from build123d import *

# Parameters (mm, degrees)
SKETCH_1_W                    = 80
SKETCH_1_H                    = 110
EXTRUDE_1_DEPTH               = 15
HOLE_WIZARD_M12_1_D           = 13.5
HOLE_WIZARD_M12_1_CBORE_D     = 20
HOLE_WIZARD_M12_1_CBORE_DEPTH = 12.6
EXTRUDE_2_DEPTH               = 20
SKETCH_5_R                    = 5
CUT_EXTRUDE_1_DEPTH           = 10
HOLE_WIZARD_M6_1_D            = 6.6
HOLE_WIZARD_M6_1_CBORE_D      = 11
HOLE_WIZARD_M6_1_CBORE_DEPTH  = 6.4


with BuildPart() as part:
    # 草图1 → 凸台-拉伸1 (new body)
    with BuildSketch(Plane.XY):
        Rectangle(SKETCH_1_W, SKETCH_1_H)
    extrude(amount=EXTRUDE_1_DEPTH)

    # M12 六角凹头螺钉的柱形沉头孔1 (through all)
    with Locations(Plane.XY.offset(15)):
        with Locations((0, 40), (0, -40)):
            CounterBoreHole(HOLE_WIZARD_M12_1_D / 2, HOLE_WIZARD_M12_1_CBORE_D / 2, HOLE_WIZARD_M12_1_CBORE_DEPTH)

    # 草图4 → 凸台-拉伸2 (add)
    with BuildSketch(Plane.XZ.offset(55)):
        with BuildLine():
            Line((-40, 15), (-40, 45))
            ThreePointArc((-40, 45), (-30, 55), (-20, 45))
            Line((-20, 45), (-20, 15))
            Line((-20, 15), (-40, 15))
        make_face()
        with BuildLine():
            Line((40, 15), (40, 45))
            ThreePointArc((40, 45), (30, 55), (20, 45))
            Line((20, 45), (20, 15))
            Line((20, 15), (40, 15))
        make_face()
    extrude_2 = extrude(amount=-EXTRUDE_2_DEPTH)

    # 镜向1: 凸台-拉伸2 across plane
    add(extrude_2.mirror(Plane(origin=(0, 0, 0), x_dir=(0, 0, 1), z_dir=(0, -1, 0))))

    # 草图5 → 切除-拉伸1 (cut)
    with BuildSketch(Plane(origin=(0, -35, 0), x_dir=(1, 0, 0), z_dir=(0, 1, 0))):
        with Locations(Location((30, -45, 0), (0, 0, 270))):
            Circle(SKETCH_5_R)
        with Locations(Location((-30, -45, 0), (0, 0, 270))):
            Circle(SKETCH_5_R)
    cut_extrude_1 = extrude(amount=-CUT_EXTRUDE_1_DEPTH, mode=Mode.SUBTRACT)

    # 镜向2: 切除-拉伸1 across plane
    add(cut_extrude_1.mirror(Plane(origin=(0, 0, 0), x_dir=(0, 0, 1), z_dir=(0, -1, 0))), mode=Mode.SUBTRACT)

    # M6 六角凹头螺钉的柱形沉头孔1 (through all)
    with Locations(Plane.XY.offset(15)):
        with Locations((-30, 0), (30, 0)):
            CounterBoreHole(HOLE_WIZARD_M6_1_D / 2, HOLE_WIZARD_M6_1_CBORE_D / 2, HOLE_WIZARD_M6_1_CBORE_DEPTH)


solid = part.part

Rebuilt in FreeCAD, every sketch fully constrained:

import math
import FreeCAD as App
import Part
import Sketcher
from FreeCAD import Vector
Q = App.Units.Quantity

doc = App.newDocument("Part")
body = doc.addObject("PartDesign::Body", "Body")

# Sketch on XY plane
sketch1 = body.newObject("Sketcher::SketchObject", "Sketch")
sketch1.AttachmentSupport = (doc.getObject("XY_Plane"), [""])
sketch1.MapMode = "FlatFace"
sketch1.addGeometry([
    Part.LineSegment(Vector(-40, 55, 0), Vector(-40, -55, 0)),
    Part.LineSegment(Vector(-40, -55, 0), Vector(40, -55, 0)),
    Part.LineSegment(Vector(40, -55, 0), Vector(40, 55, 0)),
    Part.LineSegment(Vector(40, 55, 0), Vector(-40, 55, 0)),
], False)
sketch1.addConstraint([
    Sketcher.Constraint("Coincident", 0, 2, 1, 1),
    Sketcher.Constraint("Coincident", 1, 2, 2, 1),
    Sketcher.Constraint("Coincident", 2, 2, 3, 1),
    Sketcher.Constraint("Coincident", 3, 2, 0, 1),
    Sketcher.Constraint("Vertical", 0),
    Sketcher.Constraint("Horizontal", 1),
    Sketcher.Constraint("Vertical", 2),
    Sketcher.Constraint("Horizontal", 3),
    Sketcher.Constraint("Symmetric", 0, 2, 2, 2, -1, 1),
    Sketcher.Constraint("DistanceX", 1, 1, 1, 2, Q("80 mm")),
    Sketcher.Constraint("DistanceY", 0, 2, 0, 1, Q("110 mm")),
])
pad1 = body.newObject("PartDesign::Pad", "Pad")
pad1.Profile = sketch1
pad1.Length = 15

# Sketch on XY plane
sketch2 = body.newObject("Sketcher::SketchObject", "Sketch001")
sketch2.AttachmentSupport = (doc.getObject("XY_Plane"), [""])
sketch2.MapMode = "FlatFace"
sketch2.AttachmentOffset = App.Placement(Vector(0, 0, 15), App.Rotation())
sketch2.addGeometry([
    Part.Circle(Vector(0, 40, 0), Vector(0, 0, 1), 6.75),
    Part.Circle(Vector(0, -40, 0), Vector(0, 0, 1), 6.75),
], False)
sketch2.addConstraint([
    Sketcher.Constraint("Equal", 0, 1),
    Sketcher.Constraint("Symmetric", 0, 3, 1, 3, -1, 1),
    Sketcher.Constraint("PointOnObject", 0, 3, -2),
    Sketcher.Constraint("Diameter", 0, Q("13.5 mm")),
    Sketcher.Constraint("DistanceY", -1, 1, 0, 3, Q("40 mm")),
])
doc.recompute()
hole = body.newObject("PartDesign::Hole", "Hole")
hole.Profile = sketch2
hole.ThreadType = "None"
hole.Diameter = 13.5
hole.DepthType = "ThroughAll"
hole.HoleCutType = "Counterbore"
hole.HoleCutDiameter = 20
hole.HoleCutDepth = 12.6

# Sketch on XZ plane
sketch3 = body.newObject("Sketcher::SketchObject", "Sketch002")
sketch3.AttachmentSupport = (doc.getObject("XZ_Plane"), [""])
sketch3.MapMode = "FlatFace"
sketch3.AttachmentOffset = App.Placement(Vector(0, 0, 55), App.Rotation())
sketch3.addGeometry([
    Part.LineSegment(Vector(-40, 45, 0), Vector(-40, 15, 0)),  # 0
    Part.LineSegment(Vector(-40, 15, 0), Vector(-20, 15, 0)),  # 1
    Part.LineSegment(Vector(-20, 15, 0), Vector(-20, 45, 0)),  # 2
    Part.ArcOfCircle(Part.Circle(Vector(-30, 45, 0), Vector(0, 0, 1), 10), math.radians(0), math.radians(180)),  # 3
    Part.LineSegment(Vector(40, 15, 0), Vector(40, 45, 0)),  # 4
    Part.ArcOfCircle(Part.Circle(Vector(30, 45, 0), Vector(0, 0, 1), 10), math.radians(0), math.radians(180)),  # 5
    Part.LineSegment(Vector(20, 45, 0), Vector(20, 15, 0)),  # 6
    Part.LineSegment(Vector(20, 15, 0), Vector(40, 15, 0)),  # 7
], False)
sketch3.addConstraint([
    Sketcher.Constraint("Coincident", 0, 2, 1, 1),
    Sketcher.Constraint("Coincident", 1, 2, 2, 1),
    Sketcher.Constraint("Tangent", 2, 2, 3, 1),
    Sketcher.Constraint("Tangent", 3, 2, 0, 1),
    Sketcher.Constraint("Tangent", 4, 2, 5, 1),
    Sketcher.Constraint("Tangent", 5, 2, 6, 1),
    Sketcher.Constraint("Coincident", 6, 2, 7, 1),
    Sketcher.Constraint("Coincident", 7, 2, 4, 1),
    Sketcher.Constraint("Vertical", 0),
    Sketcher.Constraint("Horizontal", 1),
    Sketcher.Constraint("Vertical", 2),
    Sketcher.Constraint("Vertical", 4),
    Sketcher.Constraint("Vertical", 6),
    Sketcher.Constraint("Horizontal", 7),
    Sketcher.Constraint("Equal", 3, 5),
    Sketcher.Constraint("Symmetric", 3, 3, 5, 3, -2),
    Sketcher.Constraint("Horizontal", 1, 2, 6, 2),
    Sketcher.Constraint("Radius", 3, Q("10 mm")),
    Sketcher.Constraint("DistanceY", 0, 2, 0, 1, Q("30 mm")),
    Sketcher.Constraint("DistanceX", 3, 3, -1, 1, Q("30 mm")),
    Sketcher.Constraint("DistanceY", -1, 1, 3, 3, Q("45 mm")),
])
pad2 = body.newObject("PartDesign::Pad", "Pad001")
pad2.Profile = sketch3
pad2.Length = 20
pad2.Reversed = True
doc.recompute()

mirrored = body.newObject("PartDesign::Mirrored", "Mirrored")
mirrored.Originals = [pad2]
mirrored.MirrorPlane = (doc.getObject("XZ_Plane"), [""])
body.Tip = mirrored

# Sketch on XZ plane
sketch4 = body.newObject("Sketcher::SketchObject", "Sketch003")
sketch4.AttachmentSupport = (doc.getObject("XZ_Plane"), [""])
sketch4.MapMode = "FlatFace"
sketch4.AttachmentOffset = App.Placement(Vector(0, 0, 35), App.Rotation())
sketch4.addGeometry([
    Part.Circle(Vector(30, 45, 0), Vector(0, 0, 1), 5),
    Part.Circle(Vector(-30, 45, 0), Vector(0, 0, 1), 5),
], False)
sketch4.addConstraint([
    Sketcher.Constraint("Equal", 0, 1),
    Sketcher.Constraint("Symmetric", 0, 3, 1, 3, -2),
    Sketcher.Constraint("Diameter", 0, Q("10 mm")),
    Sketcher.Constraint("DistanceX", -1, 1, 0, 3, Q("30 mm")),
    Sketcher.Constraint("DistanceY", -1, 1, 0, 3, Q("45 mm")),
])
pocket1 = body.newObject("PartDesign::Pocket", "Pocket")
pocket1.Profile = sketch4
pocket1.Length = 10
pocket1.Reversed = True
doc.recompute()

mirrored2 = body.newObject("PartDesign::Mirrored", "Mirrored001")
mirrored2.Originals = [pocket1]
mirrored2.MirrorPlane = (doc.getObject("XZ_Plane"), [""])
body.Tip = mirrored2

# Sketch on XY plane
sketch5 = body.newObject("Sketcher::SketchObject", "Sketch004")
sketch5.AttachmentSupport = (doc.getObject("XY_Plane"), [""])
sketch5.MapMode = "FlatFace"
sketch5.AttachmentOffset = App.Placement(Vector(0, 0, 15), App.Rotation())
sketch5.addGeometry([
    Part.Circle(Vector(-30, 0, 0), Vector(0, 0, 1), 3.3),
    Part.Circle(Vector(30, 0, 0), Vector(0, 0, 1), 3.3),
], False)
sketch5.addConstraint([
    Sketcher.Constraint("Equal", 0, 1),
    Sketcher.Constraint("Symmetric", 0, 3, 1, 3, -1, 1),
    Sketcher.Constraint("PointOnObject", 0, 3, -1),
    Sketcher.Constraint("Diameter", 0, Q("6.6 mm")),
    Sketcher.Constraint("DistanceX", 0, 3, -1, 1, Q("30 mm")),
])
doc.recompute()
hole2 = body.newObject("PartDesign::Hole", "Hole001")
hole2.Profile = sketch5
hole2.ThreadType = "None"
hole2.Diameter = 6.6
hole2.DepthType = "ThroughAll"
hole2.HoleCutType = "Counterbore"
hole2.HoleCutDiameter = 11
hole2.HoleCutDepth = 6.4

doc.recompute()
